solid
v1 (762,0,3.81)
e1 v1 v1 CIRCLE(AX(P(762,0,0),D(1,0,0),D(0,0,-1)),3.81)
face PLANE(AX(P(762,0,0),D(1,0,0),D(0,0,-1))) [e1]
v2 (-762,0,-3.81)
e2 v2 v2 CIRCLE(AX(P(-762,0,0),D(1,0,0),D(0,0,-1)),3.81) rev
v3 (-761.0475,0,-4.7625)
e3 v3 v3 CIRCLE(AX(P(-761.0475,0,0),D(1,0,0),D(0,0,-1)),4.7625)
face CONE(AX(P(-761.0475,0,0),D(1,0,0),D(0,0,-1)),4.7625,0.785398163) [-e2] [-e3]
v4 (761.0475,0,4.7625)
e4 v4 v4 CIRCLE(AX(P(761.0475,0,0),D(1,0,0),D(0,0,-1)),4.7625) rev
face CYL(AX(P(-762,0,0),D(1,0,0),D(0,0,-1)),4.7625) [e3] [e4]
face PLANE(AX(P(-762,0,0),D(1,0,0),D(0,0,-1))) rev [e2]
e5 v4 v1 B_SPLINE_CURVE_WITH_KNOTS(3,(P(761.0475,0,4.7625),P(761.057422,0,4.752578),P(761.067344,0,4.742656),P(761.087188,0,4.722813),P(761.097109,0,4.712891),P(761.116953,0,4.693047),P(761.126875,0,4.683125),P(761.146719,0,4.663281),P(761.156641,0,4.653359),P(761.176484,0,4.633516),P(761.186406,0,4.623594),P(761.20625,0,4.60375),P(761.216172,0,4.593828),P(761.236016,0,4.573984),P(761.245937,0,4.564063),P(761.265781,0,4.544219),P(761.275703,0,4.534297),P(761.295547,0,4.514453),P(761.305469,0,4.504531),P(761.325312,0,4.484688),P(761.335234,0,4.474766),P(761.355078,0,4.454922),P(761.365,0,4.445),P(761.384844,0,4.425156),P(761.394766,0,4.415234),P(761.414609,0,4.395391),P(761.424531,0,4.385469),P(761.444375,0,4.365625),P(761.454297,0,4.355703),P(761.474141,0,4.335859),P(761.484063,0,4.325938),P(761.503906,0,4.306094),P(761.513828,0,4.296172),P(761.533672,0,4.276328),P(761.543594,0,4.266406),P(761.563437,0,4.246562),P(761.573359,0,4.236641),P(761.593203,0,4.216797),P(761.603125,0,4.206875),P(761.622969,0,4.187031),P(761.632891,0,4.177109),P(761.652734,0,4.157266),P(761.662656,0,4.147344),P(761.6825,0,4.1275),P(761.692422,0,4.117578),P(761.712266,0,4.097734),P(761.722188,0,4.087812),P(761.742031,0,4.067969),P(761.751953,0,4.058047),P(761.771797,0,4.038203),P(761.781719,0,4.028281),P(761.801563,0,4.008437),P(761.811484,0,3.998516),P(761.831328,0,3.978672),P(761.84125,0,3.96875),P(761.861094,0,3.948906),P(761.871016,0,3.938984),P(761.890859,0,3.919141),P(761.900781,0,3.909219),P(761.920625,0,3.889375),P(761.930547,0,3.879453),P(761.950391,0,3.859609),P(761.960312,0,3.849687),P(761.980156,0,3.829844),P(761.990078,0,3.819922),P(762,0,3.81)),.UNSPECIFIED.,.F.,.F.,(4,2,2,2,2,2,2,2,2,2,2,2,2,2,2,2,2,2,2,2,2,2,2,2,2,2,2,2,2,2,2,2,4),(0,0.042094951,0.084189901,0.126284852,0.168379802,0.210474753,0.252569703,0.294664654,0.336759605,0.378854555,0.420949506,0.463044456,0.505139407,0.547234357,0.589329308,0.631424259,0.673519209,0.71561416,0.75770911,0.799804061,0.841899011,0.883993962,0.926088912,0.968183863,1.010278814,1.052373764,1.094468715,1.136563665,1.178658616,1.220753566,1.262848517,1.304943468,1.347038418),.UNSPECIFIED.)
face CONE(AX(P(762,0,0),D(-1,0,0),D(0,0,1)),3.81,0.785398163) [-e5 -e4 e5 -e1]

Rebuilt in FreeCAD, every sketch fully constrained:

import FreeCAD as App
import Part
import Sketcher

V = App.Vector
Q = App.Units.Quantity


def edges_at(feature, points):
    """Names of the edges that pass closest to the given points."""
    edges = feature.Shape.Edges
    near = lambda p: min(range(len(edges)), key=lambda i: edges[i].distToShape(Part.Vertex(*p))[0])
    return sorted({f"Edge{near(p) + 1}" for p in points})

doc = App.newDocument("Part")
body = doc.addObject("PartDesign::Body", "Body")

# Sketch on YZ plane
sketch1 = doc.addObject("Sketcher::SketchObject", "Sketch")
body.addObject(sketch1)
sketch1.AttachmentSupport = (doc.YZ_Plane, [""])
sketch1.MapMode = "FlatFace"
sketch1.addGeometry(Part.Circle(V(0, 0, 0), V(0, 0, 1), 4.8), False)
sketch1.addConstraint([
    Sketcher.Constraint("Coincident", 0, 3, -1, 1),
    Sketcher.Constraint("Diameter", 0, Q("0.375 in")),
])
pad1 = doc.addObject("PartDesign::Pad", "Pad")
body.addObject(pad1)
pad1.Profile = sketch1
pad1.Type = "TwoLengths"
pad1.Length = Q("30 in")
pad1.Length2 = Q("30 in")
doc.recompute()

chamfer = doc.addObject("PartDesign::Chamfer", "Chamfer")
body.addObject(chamfer)
chamfer.Base = (pad1, edges_at(pad1, [(-762, 0, 4.763), (762, 0, 4.763)]))
chamfer.Size = Q("0.0375 in")

doc.recompute()
